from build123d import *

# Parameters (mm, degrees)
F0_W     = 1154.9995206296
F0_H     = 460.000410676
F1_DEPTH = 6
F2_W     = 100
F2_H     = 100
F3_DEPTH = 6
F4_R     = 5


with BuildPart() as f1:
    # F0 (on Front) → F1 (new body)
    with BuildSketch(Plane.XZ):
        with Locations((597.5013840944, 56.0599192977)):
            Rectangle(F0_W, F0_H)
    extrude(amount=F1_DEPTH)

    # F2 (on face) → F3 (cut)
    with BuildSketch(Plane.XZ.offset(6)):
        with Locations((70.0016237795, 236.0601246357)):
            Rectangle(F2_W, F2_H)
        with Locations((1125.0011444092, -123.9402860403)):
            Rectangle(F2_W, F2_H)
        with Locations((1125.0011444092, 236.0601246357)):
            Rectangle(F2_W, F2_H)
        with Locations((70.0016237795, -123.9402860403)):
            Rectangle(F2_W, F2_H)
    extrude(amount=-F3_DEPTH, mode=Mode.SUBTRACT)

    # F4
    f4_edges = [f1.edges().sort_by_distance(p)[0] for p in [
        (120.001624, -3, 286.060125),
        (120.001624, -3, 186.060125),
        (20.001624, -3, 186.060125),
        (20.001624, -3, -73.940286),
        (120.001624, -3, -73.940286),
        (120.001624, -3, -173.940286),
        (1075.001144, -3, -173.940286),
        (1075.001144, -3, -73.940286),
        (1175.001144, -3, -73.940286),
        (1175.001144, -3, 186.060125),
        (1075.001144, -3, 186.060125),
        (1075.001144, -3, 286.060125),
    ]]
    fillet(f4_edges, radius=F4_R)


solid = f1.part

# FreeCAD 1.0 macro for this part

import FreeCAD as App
import Part
import Sketcher
from FreeCAD import Vector
Q = App.Units.Quantity


def edges_at(feature, points):
    """Names of the edges that pass closest to the given points."""
    edges = feature.Shape.Edges
    near = lambda p: min(range(len(edges)), key=lambda i: edges[i].distToShape(Part.Vertex(*p))[0])
    return sorted({f"Edge{near(p) + 1}" for p in points})

doc = App.newDocument("Part")
body = doc.addObject("PartDesign::Body", "Body")

# Sketch on XZ plane
sketch1 = body.newObject("Sketcher::SketchObject", "Sketch")
sketch1.AttachmentSupport = (doc.getObject("XZ_Plane"), [""])
sketch1.MapMode = "FlatFace"
sketch1.addGeometry([
    Part.LineSegment(Vector(20, 286, 0), Vector(20, -174, 0)),
    Part.LineSegment(Vector(20, -174, 0), Vector(1175, -174, 0)),
    Part.LineSegment(Vector(1175, -174, 0), Vector(1175, 286, 0)),
    Part.LineSegment(Vector(1175, 286, 0), Vector(20, 286, 0)),
], False)
sketch1.addConstraint([
    Sketcher.Constraint("Coincident", 0, 2, 1, 1),
    Sketcher.Constraint("Coincident", 1, 2, 2, 1),
    Sketcher.Constraint("Coincident", 2, 2, 3, 1),
    Sketcher.Constraint("Coincident", 3, 2, 0, 1),
    Sketcher.Constraint("Vertical", 0),
    Sketcher.Constraint("Horizontal", 1),
    Sketcher.Constraint("Vertical", 2),
    Sketcher.Constraint("Horizontal", 3),
    Sketcher.Constraint("DistanceX", 1, 1, 1, 2, Q("1154.999521 mm")),
    Sketcher.Constraint("DistanceY", 0, 2, 0, 1, Q("460.000411 mm")),
    Sketcher.Constraint("DistanceX", -1, 1, 0, 2, Q("20.001624 mm")),
    Sketcher.Constraint("DistanceY", 0, 2, -1, 1, Q("173.940286 mm")),
])
pad1 = body.newObject("PartDesign::Pad", "Pad")
pad1.Profile = sketch1
pad1.Length = 6

# Sketch on XZ plane
sketch2 = body.newObject("Sketcher::SketchObject", "Sketch001")
sketch2.AttachmentSupport = (doc.getObject("XZ_Plane"), [""])
sketch2.MapMode = "FlatFace"
sketch2.AttachmentOffset = App.Placement(Vector(0, 0, 6), App.Rotation())
sketch2.addGeometry([
    Part.LineSegment(Vector(20, 286, 0), Vector(20, 186, 0)),  # 0
    Part.LineSegment(Vector(20, 186, 0), Vector(120, 186, 0)),  # 1
    Part.LineSegment(Vector(120, 186, 0), Vector(120, 286, 0)),  # 2
    Part.LineSegment(Vector(120, 286, 0), Vector(20, 286, 0)),  # 3
    Part.LineSegment(Vector(1075, -74, 0), Vector(1075, -174, 0)),  # 4
    Part.LineSegment(Vector(1075, -174, 0), Vector(1175, -174, 0)),  # 5
    Part.LineSegment(Vector(1175, -174, 0), Vector(1175, -74, 0)),  # 6
    Part.LineSegment(Vector(1175, -74, 0), Vector(1075, -74, 0)),  # 7
    Part.LineSegment(Vector(1075, 286, 0), Vector(1075, 186, 0)),  # 8
    Part.LineSegment(Vector(1075, 186, 0), Vector(1175, 186, 0)),  # 9
    Part.LineSegment(Vector(1175, 186, 0), Vector(1175, 286, 0)),  # 10
    Part.LineSegment(Vector(1175, 286, 0), Vector(1075, 286, 0)),  # 11
    Part.LineSegment(Vector(20, -74, 0), Vector(20, -174, 0)),  # 12
    Part.LineSegment(Vector(20, -174, 0), Vector(120, -174, 0)),  # 13
    Part.LineSegment(Vector(120, -174, 0), Vector(120, -74, 0)),  # 14
    Part.LineSegment(Vector(120, -74, 0), Vector(20, -74, 0)),  # 15
], False)
sketch2.addConstraint([
    Sketcher.Constraint("Coincident", 0, 2, 1, 1),
    Sketcher.Constraint("Coincident", 1, 2, 2, 1),
    Sketcher.Constraint("Coincident", 2, 2, 3, 1),
    Sketcher.Constraint("Coincident", 3, 2, 0, 1),
    Sketcher.Constraint("Coincident", 4, 2, 5, 1),
    Sketcher.Constraint("Coincident", 5, 2, 6, 1),
    Sketcher.Constraint("Coincident", 6, 2, 7, 1),
    Sketcher.Constraint("Coincident", 7, 2, 4, 1),
    Sketcher.Constraint("Coincident", 8, 2, 9, 1),
    Sketcher.Constraint("Coincident", 9, 2, 10, 1),
    Sketcher.Constraint("Coincident", 10, 2, 11, 1),
    Sketcher.Constraint("Coincident", 11, 2, 8, 1),
    Sketcher.Constraint("Coincident", 12, 2, 13, 1),
    Sketcher.Constraint("Coincident", 13, 2, 14, 1),
    Sketcher.Constraint("Coincident", 14, 2, 15, 1),
    Sketcher.Constraint("Coincident", 15, 2, 12, 1),
    Sketcher.Constraint("Vertical", 0),
    Sketcher.Constraint("Horizontal", 1),
    Sketcher.Constraint("Vertical", 2),
    Sketcher.Constraint("Horizontal", 3),
    Sketcher.Constraint("Vertical", 4),
    Sketcher.Constraint("Horizontal", 5),
    Sketcher.Constraint("Vertical", 6),
    Sketcher.Constraint("Horizontal", 7),
    Sketcher.Constraint("Vertical", 8),
    Sketcher.Constraint("Horizontal", 9),
    Sketcher.Constraint("Vertical", 10),
    Sketcher.Constraint("Horizontal", 11),
    Sketcher.Constraint("Vertical", 12),
    Sketcher.Constraint("Horizontal", 13),
    Sketcher.Constraint("Vertical", 14),
    Sketcher.Constraint("Horizontal", 15),
    Sketcher.Constraint("Horizontal", 1, 2, 8, 2),
    Sketcher.Constraint("Horizontal", 3, 2, 10, 2),
    Sketcher.Constraint("Horizontal", 5, 2, 12, 2),
    Sketcher.Constraint("Horizontal", 7, 2, 14, 2),
    Sketcher.Constraint("Vertical", 7, 2, 8, 2),
    Sketcher.Constraint("Vertical", 6, 2, 9, 2),
    Sketcher.Constraint("Vertical", 3, 2, 12, 2),
    Sketcher.Constraint("Vertical", 2, 2, 13, 2),
    Sketcher.Constraint("Equal", 3, 5),
    Sketcher.Constraint("Equal", 15, 0),
    Sketcher.Constraint("Equal", 2, 4),
    Sketcher.Constraint("DistanceX", 1, 1, 1, 2, Q("100 mm")),
    Sketcher.Constraint("DistanceX", 1, 2, 4, 2, Q("954.999521 mm")),
    Sketcher.Constraint("DistanceY", 4, 2, 1, 2, Q("360.000411 mm")),
    Sketcher.Constraint("DistanceX", -1, 1, 0, 2, Q("20.001624 mm")),
    Sketcher.Constraint("DistanceY", -1, 1, 0, 2, Q("186.060125 mm")),
])
pocket1 = body.newObject("PartDesign::Pocket", "Pocket")
pocket1.Profile = sketch2
pocket1.Length = 6
doc.recompute()

fillet = body.newObject("PartDesign::Fillet", "Fillet")
fillet.Base = (pocket1, edges_at(pocket1, [
    (120.002, -3, 286.06),
    (120.002, -3, 186.06),
    (20.002, -3, 186.06),
    (20.002, -3, -73.94),
    (120.002, -3, -73.94),
    (120.002, -3, -173.94),
    (1075.001, -3, -173.94),
    (1075.001, -3, -73.94),
    (1175.001, -3, -73.94),
    (1175.001, -3, 186.06),
    (1075.001, -3, 186.06),
    (1075.001, -3, 286.06),
]))
fillet.Radius = 5

doc.recompute()
